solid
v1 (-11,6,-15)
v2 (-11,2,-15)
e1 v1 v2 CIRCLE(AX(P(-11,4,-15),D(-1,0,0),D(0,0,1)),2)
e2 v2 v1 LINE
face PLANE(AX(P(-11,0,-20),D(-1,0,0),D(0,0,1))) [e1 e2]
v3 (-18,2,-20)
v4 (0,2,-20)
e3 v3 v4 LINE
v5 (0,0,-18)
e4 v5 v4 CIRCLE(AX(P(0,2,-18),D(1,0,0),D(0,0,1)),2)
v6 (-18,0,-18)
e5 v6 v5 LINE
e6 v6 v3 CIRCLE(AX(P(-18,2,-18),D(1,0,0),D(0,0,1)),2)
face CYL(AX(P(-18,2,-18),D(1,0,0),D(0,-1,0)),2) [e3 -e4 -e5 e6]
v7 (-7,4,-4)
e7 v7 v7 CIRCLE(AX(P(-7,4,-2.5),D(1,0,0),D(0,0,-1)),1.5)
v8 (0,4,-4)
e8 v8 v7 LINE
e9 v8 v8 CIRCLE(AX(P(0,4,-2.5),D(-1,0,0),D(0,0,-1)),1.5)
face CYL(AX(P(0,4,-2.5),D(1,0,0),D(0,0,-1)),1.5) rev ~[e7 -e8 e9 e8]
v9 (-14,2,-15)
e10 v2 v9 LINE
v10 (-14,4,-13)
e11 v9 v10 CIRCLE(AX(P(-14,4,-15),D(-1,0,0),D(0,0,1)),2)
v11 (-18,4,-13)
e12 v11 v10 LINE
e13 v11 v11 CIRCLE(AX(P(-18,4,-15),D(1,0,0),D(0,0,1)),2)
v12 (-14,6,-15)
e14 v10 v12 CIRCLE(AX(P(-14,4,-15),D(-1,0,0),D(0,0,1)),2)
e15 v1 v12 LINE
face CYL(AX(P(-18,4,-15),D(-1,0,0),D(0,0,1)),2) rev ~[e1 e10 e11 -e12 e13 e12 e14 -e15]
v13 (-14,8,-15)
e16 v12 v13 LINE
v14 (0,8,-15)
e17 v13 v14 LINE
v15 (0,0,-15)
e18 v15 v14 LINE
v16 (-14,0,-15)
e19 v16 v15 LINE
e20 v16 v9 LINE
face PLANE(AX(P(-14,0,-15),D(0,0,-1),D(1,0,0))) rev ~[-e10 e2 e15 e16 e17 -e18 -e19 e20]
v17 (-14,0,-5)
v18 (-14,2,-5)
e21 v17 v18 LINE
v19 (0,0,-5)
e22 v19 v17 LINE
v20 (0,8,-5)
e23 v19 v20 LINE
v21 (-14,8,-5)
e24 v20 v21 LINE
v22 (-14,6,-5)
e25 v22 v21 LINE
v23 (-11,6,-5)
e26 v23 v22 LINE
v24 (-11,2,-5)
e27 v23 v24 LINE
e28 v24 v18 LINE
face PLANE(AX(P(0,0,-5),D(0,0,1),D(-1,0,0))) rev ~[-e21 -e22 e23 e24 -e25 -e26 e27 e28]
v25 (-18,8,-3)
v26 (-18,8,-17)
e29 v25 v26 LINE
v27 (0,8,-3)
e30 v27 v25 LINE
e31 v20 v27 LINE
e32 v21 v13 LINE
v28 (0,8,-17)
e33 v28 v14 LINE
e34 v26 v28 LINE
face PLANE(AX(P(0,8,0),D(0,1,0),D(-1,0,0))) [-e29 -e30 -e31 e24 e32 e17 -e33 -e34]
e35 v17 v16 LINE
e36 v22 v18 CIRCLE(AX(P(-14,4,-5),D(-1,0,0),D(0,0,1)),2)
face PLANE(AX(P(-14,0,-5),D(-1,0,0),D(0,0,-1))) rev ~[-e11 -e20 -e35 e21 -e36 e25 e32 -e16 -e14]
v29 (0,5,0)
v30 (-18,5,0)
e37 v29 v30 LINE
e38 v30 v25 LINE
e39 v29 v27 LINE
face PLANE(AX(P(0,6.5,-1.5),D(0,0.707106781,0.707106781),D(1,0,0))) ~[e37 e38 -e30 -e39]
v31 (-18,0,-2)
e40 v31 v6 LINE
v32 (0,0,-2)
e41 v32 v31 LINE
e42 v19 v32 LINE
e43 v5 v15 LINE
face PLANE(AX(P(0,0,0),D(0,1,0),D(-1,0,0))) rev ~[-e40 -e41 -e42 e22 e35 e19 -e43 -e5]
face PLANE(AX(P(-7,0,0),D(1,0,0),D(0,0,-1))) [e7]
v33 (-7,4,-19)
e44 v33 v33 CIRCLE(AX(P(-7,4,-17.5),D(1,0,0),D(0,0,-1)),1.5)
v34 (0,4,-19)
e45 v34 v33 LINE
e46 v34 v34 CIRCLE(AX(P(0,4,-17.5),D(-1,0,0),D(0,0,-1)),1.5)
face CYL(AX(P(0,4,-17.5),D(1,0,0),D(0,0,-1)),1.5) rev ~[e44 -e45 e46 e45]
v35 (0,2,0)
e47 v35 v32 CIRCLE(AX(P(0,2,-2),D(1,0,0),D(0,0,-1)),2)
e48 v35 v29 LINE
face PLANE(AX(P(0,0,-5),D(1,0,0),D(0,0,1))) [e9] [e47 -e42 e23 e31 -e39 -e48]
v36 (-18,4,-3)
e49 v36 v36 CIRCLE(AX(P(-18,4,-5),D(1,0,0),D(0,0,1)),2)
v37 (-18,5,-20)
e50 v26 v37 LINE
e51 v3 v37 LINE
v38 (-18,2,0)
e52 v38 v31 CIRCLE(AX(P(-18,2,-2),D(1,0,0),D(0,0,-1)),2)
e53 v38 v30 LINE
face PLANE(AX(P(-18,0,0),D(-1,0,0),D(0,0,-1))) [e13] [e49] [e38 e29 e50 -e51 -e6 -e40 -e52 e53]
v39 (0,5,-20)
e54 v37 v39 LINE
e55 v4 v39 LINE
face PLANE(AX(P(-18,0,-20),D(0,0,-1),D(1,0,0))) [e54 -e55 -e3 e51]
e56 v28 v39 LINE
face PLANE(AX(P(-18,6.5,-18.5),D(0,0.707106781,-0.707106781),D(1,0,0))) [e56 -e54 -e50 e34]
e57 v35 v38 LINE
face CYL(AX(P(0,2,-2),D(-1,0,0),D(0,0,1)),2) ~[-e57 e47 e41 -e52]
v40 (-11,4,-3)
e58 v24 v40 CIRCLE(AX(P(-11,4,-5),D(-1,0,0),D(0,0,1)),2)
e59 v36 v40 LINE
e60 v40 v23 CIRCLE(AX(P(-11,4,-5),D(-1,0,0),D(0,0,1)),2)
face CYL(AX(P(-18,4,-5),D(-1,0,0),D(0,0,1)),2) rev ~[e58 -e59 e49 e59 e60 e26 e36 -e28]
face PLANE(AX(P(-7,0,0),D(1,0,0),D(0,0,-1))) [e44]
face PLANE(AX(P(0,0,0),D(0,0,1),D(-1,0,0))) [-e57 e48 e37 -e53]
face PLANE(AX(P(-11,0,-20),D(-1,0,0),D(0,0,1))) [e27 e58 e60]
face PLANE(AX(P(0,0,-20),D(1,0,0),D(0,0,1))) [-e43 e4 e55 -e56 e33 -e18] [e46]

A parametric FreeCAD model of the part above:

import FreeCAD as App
import Part
import Sketcher

V = App.Vector
Q = App.Units.Quantity


def edges_at(feature, points):
    """Names of the edges that pass closest to the given points."""
    edges = feature.Shape.Edges
    near = lambda p: min(range(len(edges)), key=lambda i: edges[i].distToShape(Part.Vertex(*p))[0])
    return sorted({f"Edge{near(p) + 1}" for p in points})


def add_polygon(sketch, points):
    """Adds a closed chain of lines whose ends are joined by coincident constraints."""
    first, n = sketch.GeometryCount, len(points)
    for a, b in zip(points, points[1:] + points[:1]):
        sketch.addGeometry(Part.LineSegment(App.Vector(*a, 0), App.Vector(*b, 0)), False)
    for i in range(n):
        sketch.addConstraint(Sketcher.Constraint("Coincident", first + i, 2, first + (i + 1) % n, 1))

doc = App.newDocument("Part")
body = doc.addObject("PartDesign::Body", "Body")

sketch1 = body.newObject("Sketcher::SketchObject", "Sketch")
sketch1.AttachmentSupport = (doc.getObject("XZ_Plane"), [""])
sketch1.MapMode = "FlatFace"
add_polygon(sketch1, [(-18, 0), (0, 0), (0, -5), (-14, -5), (-14, -15), (0, -15), (0, -20), (-18, -20)])
sketch1.addConstraint([
    Sketcher.Constraint("Horizontal", 0),
    Sketcher.Constraint("Vertical", 1),
    Sketcher.Constraint("Horizontal", 2),
    Sketcher.Constraint("Vertical", 3),
    Sketcher.Constraint("Horizontal", 4),
    Sketcher.Constraint("Vertical", 5),
    Sketcher.Constraint("Horizontal", 6),
    Sketcher.Constraint("Vertical", 7),
    Sketcher.Constraint("Coincident", 0, 2, -1, 1),
    Sketcher.Constraint("PointOnObject", 4, 2, -2),
    Sketcher.Constraint("Equal", 1, 5),
    Sketcher.Constraint("DistanceX", 0, 1, 0, 2, Q("18 mm")),
    Sketcher.Constraint("DistanceX", 2, 2, 2, 1, Q("14 mm")),
    Sketcher.Constraint("DistanceY", 1, 2, 1, 1, Q("5 mm")),
    Sketcher.Constraint("DistanceY", 3, 2, 3, 1, Q("10 mm")),
])
pad1 = body.newObject("PartDesign::Pad", "Pad")
pad1.Profile = sketch1
pad1.Length = 8
pad1.Reversed = True

sketch2 = body.newObject("Sketcher::SketchObject", "Sketch001")
sketch2.AttachmentSupport = (doc.getObject("YZ_Plane"), [""])
sketch2.MapMode = "FlatFace"
sketch2.addGeometry([
    Part.Circle(V(4, -17.5, 0), V(0, 0, 1), 1.5),
    Part.Circle(V(4, -2.5, 0), V(0, 0, 1), 1.5),
], False)
sketch2.addConstraint([
    Sketcher.Constraint("Equal", 0, 1),
    Sketcher.Constraint("Vertical", 0, 3, 1, 3),
    Sketcher.Constraint("Diameter", 0, Q("3 mm")),
    Sketcher.Constraint("DistanceX", -1, 1, 0, 3, Q("4 mm")),
    Sketcher.Constraint("DistanceY", 1, 3, -1, 1, Q("2.5 mm")),
    Sketcher.Constraint("DistanceY", 0, 3, 1, 3, Q("15 mm")),
])
pocket1 = body.newObject("PartDesign::Pocket", "Pocket")
pocket1.Profile = sketch2
pocket1.Length = 7

sketch3 = body.newObject("Sketcher::SketchObject", "Sketch002")
sketch3.AttachmentSupport = (doc.getObject("YZ_Plane"), [""])
sketch3.MapMode = "FlatFace"
sketch3.AttachmentOffset = App.Placement(V(0, 0, -18), App.Rotation())
sketch3.addGeometry([
    Part.Circle(V(4, -5, 0), V(0, 0, 1), 2),
    Part.Circle(V(4, -15, 0), V(0, 0, 1), 2),
], False)
sketch3.addConstraint([
    Sketcher.Constraint("Equal", 0, 1),
    Sketcher.Constraint("Vertical", 0, 3, 1, 3),
    Sketcher.Constraint("Diameter", 0, Q("4 mm")),
    Sketcher.Constraint("DistanceX", -1, 1, 0, 3, Q("4 mm")),
    Sketcher.Constraint("DistanceY", 0, 3, -1, 1, Q("5 mm")),
    Sketcher.Constraint("DistanceY", 1, 3, 0, 3, Q("10 mm")),
])
pocket2 = body.newObject("PartDesign::Pocket", "Pocket001")
pocket2.Profile = sketch3
pocket2.Length = 7
pocket2.Reversed = True
doc.recompute()

fillet = body.newObject("PartDesign::Fillet", "Fillet")
fillet.Base = (pocket2, edges_at(pocket2, [(-9, 0, 0), (-9, 0, -20)]))
fillet.Radius = 2
doc.recompute()

chamfer = body.newObject("PartDesign::Chamfer", "Chamfer")
chamfer.Base = (fillet, edges_at(fillet, [(-9, 8, -20), (-9, 8, 0)]))
chamfer.Size = 3

doc.recompute()
